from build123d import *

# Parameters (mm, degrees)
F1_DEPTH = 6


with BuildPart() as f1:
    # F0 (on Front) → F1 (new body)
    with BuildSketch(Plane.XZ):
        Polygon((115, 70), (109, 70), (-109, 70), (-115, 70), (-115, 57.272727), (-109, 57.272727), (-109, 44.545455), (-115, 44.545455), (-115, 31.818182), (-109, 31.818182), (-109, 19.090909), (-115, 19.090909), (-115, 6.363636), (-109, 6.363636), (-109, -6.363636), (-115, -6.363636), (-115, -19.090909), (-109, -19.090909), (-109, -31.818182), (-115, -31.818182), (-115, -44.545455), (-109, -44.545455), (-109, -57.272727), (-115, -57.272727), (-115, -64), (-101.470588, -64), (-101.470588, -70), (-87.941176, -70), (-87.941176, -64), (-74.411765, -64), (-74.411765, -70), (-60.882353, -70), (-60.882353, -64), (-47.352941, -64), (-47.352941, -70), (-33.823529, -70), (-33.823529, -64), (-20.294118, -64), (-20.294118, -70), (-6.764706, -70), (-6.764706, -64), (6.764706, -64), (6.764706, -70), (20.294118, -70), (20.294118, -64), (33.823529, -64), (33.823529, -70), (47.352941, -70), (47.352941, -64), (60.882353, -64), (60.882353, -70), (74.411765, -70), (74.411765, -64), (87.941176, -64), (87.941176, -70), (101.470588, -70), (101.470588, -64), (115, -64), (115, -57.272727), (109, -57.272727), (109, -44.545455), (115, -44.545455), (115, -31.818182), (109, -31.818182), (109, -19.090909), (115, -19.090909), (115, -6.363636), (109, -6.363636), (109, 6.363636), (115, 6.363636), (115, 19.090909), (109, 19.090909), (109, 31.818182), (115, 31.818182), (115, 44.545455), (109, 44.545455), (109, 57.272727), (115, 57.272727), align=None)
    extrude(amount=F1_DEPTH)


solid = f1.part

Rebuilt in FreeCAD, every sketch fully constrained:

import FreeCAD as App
import Part
import Sketcher
from FreeCAD import Vector
Q = App.Units.Quantity

doc = App.newDocument("Part")
body = doc.addObject("PartDesign::Body", "Body")

sketch1 = body.newObject("Sketcher::SketchObject", "Sketch")
sketch1.AttachmentSupport = (doc.getObject("XZ_Plane"), [""])
sketch1.MapMode = "FlatFace"
sketch1.addGeometry(Part.LineSegment(Vector(115, 70, 0), Vector(-115, 70, 0)), False)
sketch1.addGeometry(Part.LineSegment(Vector(-115, 70, 0), Vector(-115, 57, 0)), False)
sketch1.addGeometry(Part.LineSegment(Vector(-115, 57, 0), Vector(-109, 57, 0)), False)
sketch1.addGeometry(Part.LineSegment(Vector(-109, 57, 0), Vector(-109, 45, 0)), False)
sketch1.addGeometry(Part.LineSegment(Vector(-109, 45, 0), Vector(-115, 45, 0)), False)
sketch1.addGeometry(Part.LineSegment(Vector(-115, 45, 0), Vector(-115, 32, 0)), False)
sketch1.addGeometry(Part.LineSegment(Vector(-115, 32, 0), Vector(-109, 32, 0)), False)
sketch1.addGeometry(Part.LineSegment(Vector(-109, 32, 0), Vector(-109, 19, 0)), False)
sketch1.addGeometry(Part.LineSegment(Vector(-109, 19, 0), Vector(-115, 19, 0)), False)
sketch1.addGeometry(Part.LineSegment(Vector(-115, 19, 0), Vector(-115, 6, 0)), False)
sketch1.addGeometry(Part.LineSegment(Vector(-115, 6, 0), Vector(-109, 6, 0)), False)
sketch1.addGeometry(Part.LineSegment(Vector(-109, 6, 0), Vector(-109, -6, 0)), False)
sketch1.addGeometry(Part.LineSegment(Vector(-109, -6, 0), Vector(-115, -6, 0)), False)
sketch1.addGeometry(Part.LineSegment(Vector(-115, -6, 0), Vector(-115, -19, 0)), False)
sketch1.addGeometry(Part.LineSegment(Vector(-115, -19, 0), Vector(-109, -19, 0)), False)
sketch1.addGeometry(Part.LineSegment(Vector(-109, -19, 0), Vector(-109, -32, 0)), False)
sketch1.addGeometry(Part.LineSegment(Vector(-109, -32, 0), Vector(-115, -32, 0)), False)
sketch1.addGeometry(Part.LineSegment(Vector(-115, -32, 0), Vector(-115, -45, 0)), False)
sketch1.addGeometry(Part.LineSegment(Vector(-115, -45, 0), Vector(-109, -45, 0)), False)
sketch1.addGeometry(Part.LineSegment(Vector(-109, -45, 0), Vector(-109, -57, 0)), False)
sketch1.addGeometry(Part.LineSegment(Vector(-109, -57, 0), Vector(-115, -57, 0)), False)
sketch1.addGeometry(Part.LineSegment(Vector(-115, -57, 0), Vector(-115, -64, 0)), False)
sketch1.addGeometry(Part.LineSegment(Vector(-115, -64, 0), Vector(-101, -64, 0)), False)
sketch1.addGeometry(Part.LineSegment(Vector(-101, -64, 0), Vector(-101, -70, 0)), False)
sketch1.addGeometry(Part.LineSegment(Vector(-101, -70, 0), Vector(-88, -70, 0)), False)
sketch1.addGeometry(Part.LineSegment(Vector(-88, -70, 0), Vector(-88, -64, 0)), False)
sketch1.addGeometry(Part.LineSegment(Vector(-88, -64, 0), Vector(-74, -64, 0)), False)
sketch1.addGeometry(Part.LineSegment(Vector(-74, -64, 0), Vector(-74, -70, 0)), False)
sketch1.addGeometry(Part.LineSegment(Vector(-74, -70, 0), Vector(-61, -70, 0)), False)
sketch1.addGeometry(Part.LineSegment(Vector(-61, -70, 0), Vector(-61, -64, 0)), False)
sketch1.addGeometry(Part.LineSegment(Vector(-61, -64, 0), Vector(-47, -64, 0)), False)
sketch1.addGeometry(Part.LineSegment(Vector(-47, -64, 0), Vector(-47, -70, 0)), False)
sketch1.addGeometry(Part.LineSegment(Vector(-47, -70, 0), Vector(-34, -70, 0)), False)
sketch1.addGeometry(Part.LineSegment(Vector(-34, -70, 0), Vector(-34, -64, 0)), False)
sketch1.addGeometry(Part.LineSegment(Vector(-34, -64, 0), Vector(-20, -64, 0)), False)
sketch1.addGeometry(Part.LineSegment(Vector(-20, -64, 0), Vector(-20, -70, 0)), False)
sketch1.addGeometry(Part.LineSegment(Vector(-20, -70, 0), Vector(-7, -70, 0)), False)
sketch1.addGeometry(Part.LineSegment(Vector(-7, -70, 0), Vector(-7, -64, 0)), False)
sketch1.addGeometry(Part.LineSegment(Vector(-7, -64, 0), Vector(7, -64, 0)), False)
sketch1.addGeometry(Part.LineSegment(Vector(7, -64, 0), Vector(7, -70, 0)), False)
sketch1.addGeometry(Part.LineSegment(Vector(7, -70, 0), Vector(20, -70, 0)), False)
sketch1.addGeometry(Part.LineSegment(Vector(20, -70, 0), Vector(20, -64, 0)), False)
sketch1.addGeometry(Part.LineSegment(Vector(20, -64, 0), Vector(34, -64, 0)), False)
sketch1.addGeometry(Part.LineSegment(Vector(34, -64, 0), Vector(34, -70, 0)), False)
sketch1.addGeometry(Part.LineSegment(Vector(34, -70, 0), Vector(47, -70, 0)), False)
sketch1.addGeometry(Part.LineSegment(Vector(47, -70, 0), Vector(47, -64, 0)), False)
sketch1.addGeometry(Part.LineSegment(Vector(47, -64, 0), Vector(61, -64, 0)), False)
sketch1.addGeometry(Part.LineSegment(Vector(61, -64, 0), Vector(61, -70, 0)), False)
sketch1.addGeometry(Part.LineSegment(Vector(61, -70, 0), Vector(74, -70, 0)), False)
sketch1.addGeometry(Part.LineSegment(Vector(74, -70, 0), Vector(74, -64, 0)), False)
sketch1.addGeometry(Part.LineSegment(Vector(74, -64, 0), Vector(88, -64, 0)), False)
sketch1.addGeometry(Part.LineSegment(Vector(88, -64, 0), Vector(88, -70, 0)), False)
sketch1.addGeometry(Part.LineSegment(Vector(88, -70, 0), Vector(101, -70, 0)), False)
sketch1.addGeometry(Part.LineSegment(Vector(101, -70, 0), Vector(101, -64, 0)), False)
sketch1.addGeometry(Part.LineSegment(Vector(101, -64, 0), Vector(115, -64, 0)), False)
sketch1.addGeometry(Part.LineSegment(Vector(115, -64, 0), Vector(115, -57, 0)), False)
sketch1.addGeometry(Part.LineSegment(Vector(115, -57, 0), Vector(109, -57, 0)), False)
sketch1.addGeometry(Part.LineSegment(Vector(109, -57, 0), Vector(109, -45, 0)), False)
sketch1.addGeometry(Part.LineSegment(Vector(109, -45, 0), Vector(115, -45, 0)), False)
sketch1.addGeometry(Part.LineSegment(Vector(115, -45, 0), Vector(115, -32, 0)), False)
sketch1.addGeometry(Part.LineSegment(Vector(115, -32, 0), Vector(109, -32, 0)), False)
sketch1.addGeometry(Part.LineSegment(Vector(109, -32, 0), Vector(109, -19, 0)), False)
sketch1.addGeometry(Part.LineSegment(Vector(109, -19, 0), Vector(115, -19, 0)), False)
sketch1.addGeometry(Part.LineSegment(Vector(115, -19, 0), Vector(115, -6, 0)), False)
sketch1.addGeometry(Part.LineSegment(Vector(115, -6, 0), Vector(109, -6, 0)), False)
sketch1.addGeometry(Part.LineSegment(Vector(109, -6, 0), Vector(109, 6, 0)), False)
sketch1.addGeometry(Part.LineSegment(Vector(109, 6, 0), Vector(115, 6, 0)), False)
sketch1.addGeometry(Part.LineSegment(Vector(115, 6, 0), Vector(115, 19, 0)), False)
sketch1.addGeometry(Part.LineSegment(Vector(115, 19, 0), Vector(109, 19, 0)), False)
sketch1.addGeometry(Part.LineSegment(Vector(109, 19, 0), Vector(109, 32, 0)), False)
sketch1.addGeometry(Part.LineSegment(Vector(109, 32, 0), Vector(115, 32, 0)), False)
sketch1.addGeometry(Part.LineSegment(Vector(115, 32, 0), Vector(115, 45, 0)), False)
sketch1.addGeometry(Part.LineSegment(Vector(115, 45, 0), Vector(109, 45, 0)), False)
sketch1.addGeometry(Part.LineSegment(Vector(109, 45, 0), Vector(109, 57, 0)), False)
sketch1.addGeometry(Part.LineSegment(Vector(109, 57, 0), Vector(115, 57, 0)), False)
sketch1.addGeometry(Part.LineSegment(Vector(115, 57, 0), Vector(115, 70, 0)), False)
sketch1.addConstraint(Sketcher.Constraint("Coincident", 0, 2, 1, 1))
sketch1.addConstraint(Sketcher.Constraint("Coincident", 1, 2, 2, 1))
sketch1.addConstraint(Sketcher.Constraint("Coincident", 2, 2, 3, 1))
sketch1.addConstraint(Sketcher.Constraint("Coincident", 3, 2, 4, 1))
sketch1.addConstraint(Sketcher.Constraint("Coincident", 4, 2, 5, 1))
sketch1.addConstraint(Sketcher.Constraint("Coincident", 5, 2, 6, 1))
sketch1.addConstraint(Sketcher.Constraint("Coincident", 6, 2, 7, 1))
sketch1.addConstraint(Sketcher.Constraint("Coincident", 7, 2, 8, 1))
sketch1.addConstraint(Sketcher.Constraint("Coincident", 8, 2, 9, 1))
sketch1.addConstraint(Sketcher.Constraint("Coincident", 9, 2, 10, 1))
sketch1.addConstraint(Sketcher.Constraint("Coincident", 10, 2, 11, 1))
sketch1.addConstraint(Sketcher.Constraint("Coincident", 11, 2, 12, 1))
sketch1.addConstraint(Sketcher.Constraint("Coincident", 12, 2, 13, 1))
sketch1.addConstraint(Sketcher.Constraint("Coincident", 13, 2, 14, 1))
sketch1.addConstraint(Sketcher.Constraint("Coincident", 14, 2, 15, 1))
sketch1.addConstraint(Sketcher.Constraint("Coincident", 15, 2, 16, 1))
sketch1.addConstraint(Sketcher.Constraint("Coincident", 16, 2, 17, 1))
sketch1.addConstraint(Sketcher.Constraint("Coincident", 17, 2, 18, 1))
sketch1.addConstraint(Sketcher.Constraint("Coincident", 18, 2, 19, 1))
sketch1.addConstraint(Sketcher.Constraint("Coincident", 19, 2, 20, 1))
sketch1.addConstraint(Sketcher.Constraint("Coincident", 20, 2, 21, 1))
sketch1.addConstraint(Sketcher.Constraint("Coincident", 21, 2, 22, 1))
sketch1.addConstraint(Sketcher.Constraint("Coincident", 22, 2, 23, 1))
sketch1.addConstraint(Sketcher.Constraint("Coincident", 23, 2, 24, 1))
sketch1.addConstraint(Sketcher.Constraint("Coincident", 24, 2, 25, 1))
sketch1.addConstraint(Sketcher.Constraint("Coincident", 25, 2, 26, 1))
sketch1.addConstraint(Sketcher.Constraint("Coincident", 26, 2, 27, 1))
sketch1.addConstraint(Sketcher.Constraint("Coincident", 27, 2, 28, 1))
sketch1.addConstraint(Sketcher.Constraint("Coincident", 28, 2, 29, 1))
sketch1.addConstraint(Sketcher.Constraint("Coincident", 29, 2, 30, 1))
sketch1.addConstraint(Sketcher.Constraint("Coincident", 30, 2, 31, 1))
sketch1.addConstraint(Sketcher.Constraint("Coincident", 31, 2, 32, 1))
sketch1.addConstraint(Sketcher.Constraint("Coincident", 32, 2, 33, 1))
sketch1.addConstraint(Sketcher.Constraint("Coincident", 33, 2, 34, 1))
sketch1.addConstraint(Sketcher.Constraint("Coincident", 34, 2, 35, 1))
sketch1.addConstraint(Sketcher.Constraint("Coincident", 35, 2, 36, 1))
sketch1.addConstraint(Sketcher.Constraint("Coincident", 36, 2, 37, 1))
sketch1.addConstraint(Sketcher.Constraint("Coincident", 37, 2, 38, 1))
sketch1.addConstraint(Sketcher.Constraint("Coincident", 38, 2, 39, 1))
sketch1.addConstraint(Sketcher.Constraint("Coincident", 39, 2, 40, 1))
sketch1.addConstraint(Sketcher.Constraint("Coincident", 40, 2, 41, 1))
sketch1.addConstraint(Sketcher.Constraint("Coincident", 41, 2, 42, 1))
sketch1.addConstraint(Sketcher.Constraint("Coincident", 42, 2, 43, 1))
sketch1.addConstraint(Sketcher.Constraint("Coincident", 43, 2, 44, 1))
sketch1.addConstraint(Sketcher.Constraint("Coincident", 44, 2, 45, 1))
sketch1.addConstraint(Sketcher.Constraint("Coincident", 45, 2, 46, 1))
sketch1.addConstraint(Sketcher.Constraint("Coincident", 46, 2, 47, 1))
sketch1.addConstraint(Sketcher.Constraint("Coincident", 47, 2, 48, 1))
sketch1.addConstraint(Sketcher.Constraint("Coincident", 48, 2, 49, 1))
sketch1.addConstraint(Sketcher.Constraint("Coincident", 49, 2, 50, 1))
sketch1.addConstraint(Sketcher.Constraint("Coincident", 50, 2, 51, 1))
sketch1.addConstraint(Sketcher.Constraint("Coincident", 51, 2, 52, 1))
sketch1.addConstraint(Sketcher.Constraint("Coincident", 52, 2, 53, 1))
sketch1.addConstraint(Sketcher.Constraint("Coincident", 53, 2, 54, 1))
sketch1.addConstraint(Sketcher.Constraint("Coincident", 54, 2, 55, 1))
sketch1.addConstraint(Sketcher.Constraint("Coincident", 55, 2, 56, 1))
sketch1.addConstraint(Sketcher.Constraint("Coincident", 56, 2, 57, 1))
sketch1.addConstraint(Sketcher.Constraint("Coincident", 57, 2, 58, 1))
sketch1.addConstraint(Sketcher.Constraint("Coincident", 58, 2, 59, 1))
sketch1.addConstraint(Sketcher.Constraint("Coincident", 59, 2, 60, 1))
sketch1.addConstraint(Sketcher.Constraint("Coincident", 60, 2, 61, 1))
sketch1.addConstraint(Sketcher.Constraint("Coincident", 61, 2, 62, 1))
sketch1.addConstraint(Sketcher.Constraint("Coincident", 62, 2, 63, 1))
sketch1.addConstraint(Sketcher.Constraint("Coincident", 63, 2, 64, 1))
sketch1.addConstraint(Sketcher.Constraint("Coincident", 64, 2, 65, 1))
sketch1.addConstraint(Sketcher.Constraint("Coincident", 65, 2, 66, 1))
sketch1.addConstraint(Sketcher.Constraint("Coincident", 66, 2, 67, 1))
sketch1.addConstraint(Sketcher.Constraint("Coincident", 67, 2, 68, 1))
sketch1.addConstraint(Sketcher.Constraint("Coincident", 68, 2, 69, 1))
sketch1.addConstraint(Sketcher.Constraint("Coincident", 69, 2, 70, 1))
sketch1.addConstraint(Sketcher.Constraint("Coincident", 70, 2, 71, 1))
sketch1.addConstraint(Sketcher.Constraint("Coincident", 71, 2, 72, 1))
sketch1.addConstraint(Sketcher.Constraint("Coincident", 72, 2, 73, 1))
sketch1.addConstraint(Sketcher.Constraint("Coincident", 73, 2, 74, 1))
sketch1.addConstraint(Sketcher.Constraint("Coincident", 74, 2, 75, 1))
sketch1.addConstraint(Sketcher.Constraint("Coincident", 75, 2, 0, 1))
sketch1.addConstraint(Sketcher.Constraint("Horizontal", 0))
sketch1.addConstraint(Sketcher.Constraint("Vertical", 1))
sketch1.addConstraint(Sketcher.Constraint("Horizontal", 2))
sketch1.addConstraint(Sketcher.Constraint("Vertical", 3))
sketch1.addConstraint(Sketcher.Constraint("Horizontal", 4))
sketch1.addConstraint(Sketcher.Constraint("Vertical", 5))
sketch1.addConstraint(Sketcher.Constraint("Horizontal", 6))
sketch1.addConstraint(Sketcher.Constraint("Vertical", 7))
sketch1.addConstraint(Sketcher.Constraint("Horizontal", 8))
sketch1.addConstraint(Sketcher.Constraint("Vertical", 9))
sketch1.addConstraint(Sketcher.Constraint("Horizontal", 10))
sketch1.addConstraint(Sketcher.Constraint("Vertical", 11))
sketch1.addConstraint(Sketcher.Constraint("Horizontal", 12))
sketch1.addConstraint(Sketcher.Constraint("Vertical", 13))
sketch1.addConstraint(Sketcher.Constraint("Horizontal", 14))
sketch1.addConstraint(Sketcher.Constraint("Vertical", 15))
sketch1.addConstraint(Sketcher.Constraint("Horizontal", 16))
sketch1.addConstraint(Sketcher.Constraint("Vertical", 17))
sketch1.addConstraint(Sketcher.Constraint("Horizontal", 18))
sketch1.addConstraint(Sketcher.Constraint("Vertical", 19))
sketch1.addConstraint(Sketcher.Constraint("Horizontal", 20))
sketch1.addConstraint(Sketcher.Constraint("Vertical", 21))
sketch1.addConstraint(Sketcher.Constraint("Horizontal", 22))
sketch1.addConstraint(Sketcher.Constraint("Vertical", 23))
sketch1.addConstraint(Sketcher.Constraint("Horizontal", 24))
sketch1.addConstraint(Sketcher.Constraint("Vertical", 25))
sketch1.addConstraint(Sketcher.Constraint("Horizontal", 26))
sketch1.addConstraint(Sketcher.Constraint("Vertical", 27))
sketch1.addConstraint(Sketcher.Constraint("Horizontal", 28))
sketch1.addConstraint(Sketcher.Constraint("Vertical", 29))
sketch1.addConstraint(Sketcher.Constraint("Horizontal", 30))
sketch1.addConstraint(Sketcher.Constraint("Vertical", 31))
sketch1.addConstraint(Sketcher.Constraint("Horizontal", 32))
sketch1.addConstraint(Sketcher.Constraint("Vertical", 33))
sketch1.addConstraint(Sketcher.Constraint("Horizontal", 34))
sketch1.addConstraint(Sketcher.Constraint("Vertical", 35))
sketch1.addConstraint(Sketcher.Constraint("Horizontal", 36))
sketch1.addConstraint(Sketcher.Constraint("Vertical", 37))
sketch1.addConstraint(Sketcher.Constraint("Horizontal", 38))
sketch1.addConstraint(Sketcher.Constraint("Vertical", 39))
sketch1.addConstraint(Sketcher.Constraint("Horizontal", 40))
sketch1.addConstraint(Sketcher.Constraint("Vertical", 41))
sketch1.addConstraint(Sketcher.Constraint("Horizontal", 42))
sketch1.addConstraint(Sketcher.Constraint("Vertical", 43))
sketch1.addConstraint(Sketcher.Constraint("Horizontal", 44))
sketch1.addConstraint(Sketcher.Constraint("Vertical", 45))
sketch1.addConstraint(Sketcher.Constraint("Horizontal", 46))
sketch1.addConstraint(Sketcher.Constraint("Vertical", 47))
sketch1.addConstraint(Sketcher.Constraint("Horizontal", 48))
sketch1.addConstraint(Sketcher.Constraint("Vertical", 49))
sketch1.addConstraint(Sketcher.Constraint("Horizontal", 50))
sketch1.addConstraint(Sketcher.Constraint("Vertical", 51))
sketch1.addConstraint(Sketcher.Constraint("Horizontal", 52))
sketch1.addConstraint(Sketcher.Constraint("Vertical", 53))
sketch1.addConstraint(Sketcher.Constraint("Horizontal", 54))
sketch1.addConstraint(Sketcher.Constraint("Vertical", 55))
sketch1.addConstraint(Sketcher.Constraint("Horizontal", 56))
sketch1.addConstraint(Sketcher.Constraint("Vertical", 57))
sketch1.addConstraint(Sketcher.Constraint("Horizontal", 58))
sketch1.addConstraint(Sketcher.Constraint("Vertical", 59))
sketch1.addConstraint(Sketcher.Constraint("Horizontal", 60))
sketch1.addConstraint(Sketcher.Constraint("Vertical", 61))
sketch1.addConstraint(Sketcher.Constraint("Horizontal", 62))
sketch1.addConstraint(Sketcher.Constraint("Vertical", 63))
sketch1.addConstraint(Sketcher.Constraint("Horizontal", 64))
sketch1.addConstraint(Sketcher.Constraint("Vertical", 65))
sketch1.addConstraint(Sketcher.Constraint("Horizontal", 66))
sketch1.addConstraint(Sketcher.Constraint("Vertical", 67))
sketch1.addConstraint(Sketcher.Constraint("Horizontal", 68))
sketch1.addConstraint(Sketcher.Constraint("Vertical", 69))
sketch1.addConstraint(Sketcher.Constraint("Horizontal", 70))
sketch1.addConstraint(Sketcher.Constraint("Vertical", 71))
sketch1.addConstraint(Sketcher.Constraint("Horizontal", 72))
sketch1.addConstraint(Sketcher.Constraint("Vertical", 73))
sketch1.addConstraint(Sketcher.Constraint("Horizontal", 74))
sketch1.addConstraint(Sketcher.Constraint("Vertical", 75))
sketch1.addConstraint(Sketcher.Constraint("Symmetric", 1, 2, 55, 2, -1, 1))
sketch1.addConstraint(Sketcher.Constraint("Symmetric", 3, 2, 57, 2, -1, 1))
sketch1.addConstraint(Sketcher.Constraint("Symmetric", 5, 2, 59, 2, -1, 1))
sketch1.addConstraint(Sketcher.Constraint("Symmetric", 7, 2, 61, 2, -1, 1))
sketch1.addConstraint(Sketcher.Constraint("Symmetric", 9, 2, 63, 2, -1, 1))
sketch1.addConstraint(Sketcher.Constraint("Symmetric", 11, 2, 65, 2, -1, 1))
sketch1.addConstraint(Sketcher.Constraint("Symmetric", 13, 2, 67, 2, -1, 1))
sketch1.addConstraint(Sketcher.Constraint("Symmetric", 15, 2, 69, 2, -1, 1))
sketch1.addConstraint(Sketcher.Constraint("Symmetric", 17, 2, 71, 2, -1, 1))
sketch1.addConstraint(Sketcher.Constraint("Symmetric", 19, 2, 73, 2, -1, 1))
sketch1.addConstraint(Sketcher.Constraint("Symmetric", 36, 2, 39, 2, -2))
sketch1.addConstraint(Sketcher.Constraint("Symmetric", 34, 2, 41, 2, -2))
sketch1.addConstraint(Sketcher.Constraint("Symmetric", 32, 2, 43, 2, -2))
sketch1.addConstraint(Sketcher.Constraint("Symmetric", 30, 2, 45, 2, -2))
sketch1.addConstraint(Sketcher.Constraint("Symmetric", 28, 2, 47, 2, -2))
sketch1.addConstraint(Sketcher.Constraint("Symmetric", 26, 2, 49, 2, -2))
sketch1.addConstraint(Sketcher.Constraint("Symmetric", 24, 2, 51, 2, -2))
sketch1.addConstraint(Sketcher.Constraint("Symmetric", 22, 2, 53, 2, -2))
sketch1.addConstraint(Sketcher.Constraint("Symmetric", 20, 2, 55, 2, -2))
sketch1.addConstraint(Sketcher.Constraint("Symmetric", 18, 2, 57, 2, -2))
sketch1.addConstraint(Sketcher.Constraint("Symmetric", 16, 2, 59, 2, -2))
sketch1.addConstraint(Sketcher.Constraint("Symmetric", 14, 2, 61, 2, -2))
sketch1.addConstraint(Sketcher.Constraint("Symmetric", 12, 2, 63, 2, -2))
sketch1.addConstraint(Sketcher.Constraint("Horizontal", 22, 2, 25, 2))
sketch1.addConstraint(Sketcher.Constraint("Horizontal", 24, 2, 27, 2))
sketch1.addConstraint(Sketcher.Constraint("Horizontal", 26, 2, 29, 2))
sketch1.addConstraint(Sketcher.Constraint("Horizontal", 28, 2, 31, 2))
sketch1.addConstraint(Sketcher.Constraint("Horizontal", 30, 2, 33, 2))
sketch1.addConstraint(Sketcher.Constraint("Horizontal", 32, 2, 35, 2))
sketch1.addConstraint(Sketcher.Constraint("Horizontal", 34, 2, 37, 2))
sketch1.addConstraint(Sketcher.Constraint("Vertical", 1, 2, 4, 2))
sketch1.addConstraint(Sketcher.Constraint("Vertical", 3, 2, 6, 2))
sketch1.addConstraint(Sketcher.Constraint("Vertical", 5, 2, 8, 2))
sketch1.addConstraint(Sketcher.Constraint("Vertical", 7, 2, 10, 2))
sketch1.addConstraint(Sketcher.Constraint("Vertical", 71, 2, 74, 2))
sketch1.addConstraint(Sketcher.Constraint("Equal", 22, 24))
sketch1.addConstraint(Sketcher.Constraint("Equal", 24, 26))
sketch1.addConstraint(Sketcher.Constraint("Equal", 26, 28))
sketch1.addConstraint(Sketcher.Constraint("Equal", 28, 30))
sketch1.addConstraint(Sketcher.Constraint("Equal", 30, 32))
sketch1.addConstraint(Sketcher.Constraint("Equal", 32, 34))
sketch1.addConstraint(Sketcher.Constraint("Equal", 34, 36))
sketch1.addConstraint(Sketcher.Constraint("Equal", 36, 38))
sketch1.addConstraint(Sketcher.Constraint("Equal", 1, 3))
sketch1.addConstraint(Sketcher.Constraint("Equal", 3, 5))
sketch1.addConstraint(Sketcher.Constraint("Equal", 5, 7))
sketch1.addConstraint(Sketcher.Constraint("Equal", 7, 9))
sketch1.addConstraint(Sketcher.Constraint("Equal", 9, 11))
sketch1.addConstraint(Sketcher.Constraint("Equal", 74, 23))
sketch1.addConstraint(Sketcher.Constraint("DistanceX", 0, 2, 0, 1, Q("230 mm")))
sketch1.addConstraint(Sketcher.Constraint("DistanceX", 2, 1, 2, 2, Q("6 mm")))
sketch1.addConstraint(Sketcher.Constraint("DistanceY", -1, 1, 0, 2, Q("70 mm")))
sketch1.addConstraint(Sketcher.Constraint("DistanceY", 21, 2, -1, 1, Q("64 mm")))
pad1 = body.newObject("PartDesign::Pad", "Pad")
pad1.Profile = sketch1
pad1.Length = 6

doc.recompute()
